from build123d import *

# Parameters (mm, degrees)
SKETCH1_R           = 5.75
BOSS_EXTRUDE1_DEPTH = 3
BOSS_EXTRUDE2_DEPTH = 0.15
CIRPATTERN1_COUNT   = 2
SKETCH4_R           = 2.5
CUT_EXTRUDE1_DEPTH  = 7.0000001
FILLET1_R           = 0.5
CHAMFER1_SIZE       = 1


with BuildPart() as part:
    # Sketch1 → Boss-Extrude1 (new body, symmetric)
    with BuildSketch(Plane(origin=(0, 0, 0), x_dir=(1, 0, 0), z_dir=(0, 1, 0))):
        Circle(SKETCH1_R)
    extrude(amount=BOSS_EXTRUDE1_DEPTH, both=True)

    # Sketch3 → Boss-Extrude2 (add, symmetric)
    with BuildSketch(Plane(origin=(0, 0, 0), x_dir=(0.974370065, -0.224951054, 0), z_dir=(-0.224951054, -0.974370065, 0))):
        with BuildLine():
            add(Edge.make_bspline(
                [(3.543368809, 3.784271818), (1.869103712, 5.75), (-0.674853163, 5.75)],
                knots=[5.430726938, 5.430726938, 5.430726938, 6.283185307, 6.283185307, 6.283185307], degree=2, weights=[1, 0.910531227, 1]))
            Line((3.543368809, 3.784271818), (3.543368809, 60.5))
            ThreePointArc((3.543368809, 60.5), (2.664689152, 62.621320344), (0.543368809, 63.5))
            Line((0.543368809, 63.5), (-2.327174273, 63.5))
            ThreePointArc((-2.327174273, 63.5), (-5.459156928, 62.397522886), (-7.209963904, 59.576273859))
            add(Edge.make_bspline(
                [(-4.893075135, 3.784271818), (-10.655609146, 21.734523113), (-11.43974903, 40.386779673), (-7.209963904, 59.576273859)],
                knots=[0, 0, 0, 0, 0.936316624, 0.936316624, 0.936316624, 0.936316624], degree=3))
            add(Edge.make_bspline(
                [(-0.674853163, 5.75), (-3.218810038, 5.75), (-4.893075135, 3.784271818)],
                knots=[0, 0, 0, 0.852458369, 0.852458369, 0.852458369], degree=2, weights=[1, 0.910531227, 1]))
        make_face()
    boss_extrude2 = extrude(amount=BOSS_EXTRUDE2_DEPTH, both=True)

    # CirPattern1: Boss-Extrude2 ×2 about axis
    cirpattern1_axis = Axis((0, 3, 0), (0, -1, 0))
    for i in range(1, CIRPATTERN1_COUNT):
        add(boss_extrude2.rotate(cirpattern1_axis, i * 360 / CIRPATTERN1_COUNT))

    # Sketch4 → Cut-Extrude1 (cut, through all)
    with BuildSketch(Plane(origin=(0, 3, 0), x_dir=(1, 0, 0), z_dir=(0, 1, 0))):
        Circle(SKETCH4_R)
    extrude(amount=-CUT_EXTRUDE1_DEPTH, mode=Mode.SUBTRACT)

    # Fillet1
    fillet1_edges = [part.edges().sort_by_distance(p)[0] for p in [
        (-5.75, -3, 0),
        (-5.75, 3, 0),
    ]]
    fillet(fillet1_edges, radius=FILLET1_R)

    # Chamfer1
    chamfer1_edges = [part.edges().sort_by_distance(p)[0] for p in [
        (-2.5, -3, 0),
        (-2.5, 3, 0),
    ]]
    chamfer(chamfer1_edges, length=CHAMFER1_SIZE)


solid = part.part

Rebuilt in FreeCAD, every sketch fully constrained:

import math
import FreeCAD as App
import Part
import Sketcher
Q = App.Units.Quantity


def edges_at(feature, points):
    """Names of the edges that pass closest to the given points."""
    edges = feature.Shape.Edges
    near = lambda p: min(range(len(edges)), key=lambda i: edges[i].distToShape(Part.Vertex(*p))[0])
    return sorted({f"Edge{near(p) + 1}" for p in points})

doc = App.newDocument("Part")
params = doc.addObject("Spreadsheet::Sheet", "Params")
for row, (alias, value) in enumerate([
    ("sketch1_diameter", "11.5 mm"),
    ("pad1_length", "6 mm"),
    ("sketch2_radius", "3 mm"),
    ("sketch2_radius2", "5 mm"),
    ("pad2_length", "0.3 mm"),
    ("sketch3_diameter", "5 mm"),
    ("fillet_radius", "0.5 mm"),
    ("chamfer_size", "1 mm"),
], start=1):
    params.set(f"A{row}", alias)
    params.set(f"B{row}", "=" + value)
    params.setAlias(f"B{row}", alias)

body = doc.addObject("PartDesign::Body", "Body")

sketch1 = body.newObject("Sketcher::SketchObject", "Sketch")
sketch1.AttachmentSupport = (doc.getObject("XZ_Plane"), [""])
sketch1.MapMode = "FlatFace"
sketch1.addGeometry(Part.Circle(App.Vector(0, 0, 0), App.Vector(0, 0, 1), 5.75), False)
sketch1.addConstraint([
    Sketcher.Constraint("Coincident", 0, 3, -1, 1),
    Sketcher.Constraint("Diameter", 0, Q("11.5 mm")),
])
sketch1.setExpression("Constraints[1]", "Params.sketch1_diameter")
pad1 = body.newObject("PartDesign::Pad", "Pad")
pad1.Profile = sketch1
pad1.setExpression("Length", "Params.pad1_length")
pad1.Midplane = True

sketch2 = body.newObject("Sketcher::SketchObject", "Sketch001")
sketch2.Placement = App.Placement(App.Vector(0, 0, 0), App.Rotation(App.Vector(0.974370065, -0.224951054, 0), App.Vector(0, 0, 1), App.Vector(-0.224951054, -0.974370065, 0), "ZXY"))
sketch2.addGeometry([
    Part.BSplineCurve([App.Vector(3.543369, 3.784272, 0), App.Vector(2.933581, 4.500215, 0), App.Vector(2.147839, 5.1231, 0), App.Vector(1.225762, 5.552796, 0), App.Vector(0.251688, 5.75, 0), App.Vector(-1.601394, 5.75, 0), App.Vector(-2.575469, 5.552796, 0), App.Vector(-3.497545, 5.1231, 0), App.Vector(-4.283287, 4.500215, 0), App.Vector(-4.893075, 3.784272, 0)], [6, 4, 6], [5.430726938, 6.283185307, 7.135643676], False, 5, [1, 1, 0.996798135, 0.996798135, 1, 1, 0.996798135, 0.996798135, 1, 1], False),
    Part.LineSegment(App.Vector(3.543369, 3.784272, 0), App.Vector(3.543369, 60.5, 0)),
    Part.ArcOfCircle(Part.Circle(App.Vector(0.543369, 60.5, 0), App.Vector(0, 0, 1), 3), math.radians(0), math.radians(90)),
    Part.LineSegment(App.Vector(0.543369, 63.5, 0), App.Vector(-2.327174, 63.5, 0)),
    Part.ArcOfCircle(Part.Circle(App.Vector(-2.327174, 58.5, 0), App.Vector(0, 0, 1), 5), math.radians(90), math.radians(167.569525)),
    Part.BSplineCurve([App.Vector(-4.893075, 3.784272, 0), App.Vector(-10.655609, 21.734523, 0), App.Vector(-11.439749, 40.38678, 0), App.Vector(-7.209964, 59.576274, 0)], [4, 4], [0, 0.936316624], False, 3, [1, 1, 1, 1], False),
], False)
sketch2.addConstraint([
    Sketcher.Constraint("Block", 0),
    Sketcher.Constraint("Block", 5),
    Sketcher.Constraint("Coincident", 0, 1, 1, 1),
    Sketcher.Constraint("Tangent", 1, 2, 2, 1),
    Sketcher.Constraint("Tangent", 2, 2, 3, 1),
    Sketcher.Constraint("Tangent", 3, 2, 4, 1),
    Sketcher.Constraint("Coincident", 4, 2, 5, 2),
    Sketcher.Constraint("Vertical", 1),
    Sketcher.Constraint("Horizontal", 3),
    Sketcher.Constraint("Radius", 2, Q("3 mm")),
    Sketcher.Constraint("Radius", 4, Q("5 mm")),
    Sketcher.Constraint("DistanceY", -1, 1, 2, 3, Q("60.5 mm")),
])
sketch2.setExpression("Constraints[9]", "Params.sketch2_radius")
sketch2.setExpression("Constraints[10]", "Params.sketch2_radius2")
pad2 = body.newObject("PartDesign::Pad", "Pad001")
pad2.Profile = sketch2
pad2.setExpression("Length", "Params.pad2_length")
pad2.Midplane = True
doc.recompute()

polarpattern = body.newObject("PartDesign::PolarPattern", "PolarPattern")
polarpattern.Originals = [pad2]
polarpattern.Axis = (doc.getObject("Y_Axis"), [""])
polarpattern.Angle = 360
polarpattern.Occurrences = 2
body.Tip = polarpattern

sketch3 = body.newObject("Sketcher::SketchObject", "Sketch002")
sketch3.AttachmentSupport = (doc.getObject("XZ_Plane"), [""])
sketch3.MapMode = "FlatFace"
sketch3.AttachmentOffset = App.Placement(App.Vector(0, 0, -3), App.Rotation())
sketch3.addGeometry(Part.Circle(App.Vector(0, 0, 0), App.Vector(0, 0, 1), 2.5), False)
sketch3.addConstraint([
    Sketcher.Constraint("Coincident", 0, 3, -1, 1),
    Sketcher.Constraint("Diameter", 0, Q("5 mm")),
])
sketch3.setExpression("Constraints[1]", "Params.sketch3_diameter")
pocket1 = body.newObject("PartDesign::Pocket", "Pocket")
pocket1.Profile = sketch3
pocket1.Type = "ThroughAll"
pocket1.Reversed = True
doc.recompute()

fillet = body.newObject("PartDesign::Fillet", "Fillet")
fillet.Base = (pocket1, edges_at(pocket1, [(-5.75, -3, 0), (-5.75, 3, 0)]))
fillet.setExpression("Radius", "Params.fillet_radius")
doc.recompute()

chamfer = body.newObject("PartDesign::Chamfer", "Chamfer")
chamfer.Base = (fillet, edges_at(fillet, [(-2.5, -3, 0), (-2.5, 3, 0)]))
chamfer.setExpression("Size", "Params.chamfer_size")

doc.recompute()
